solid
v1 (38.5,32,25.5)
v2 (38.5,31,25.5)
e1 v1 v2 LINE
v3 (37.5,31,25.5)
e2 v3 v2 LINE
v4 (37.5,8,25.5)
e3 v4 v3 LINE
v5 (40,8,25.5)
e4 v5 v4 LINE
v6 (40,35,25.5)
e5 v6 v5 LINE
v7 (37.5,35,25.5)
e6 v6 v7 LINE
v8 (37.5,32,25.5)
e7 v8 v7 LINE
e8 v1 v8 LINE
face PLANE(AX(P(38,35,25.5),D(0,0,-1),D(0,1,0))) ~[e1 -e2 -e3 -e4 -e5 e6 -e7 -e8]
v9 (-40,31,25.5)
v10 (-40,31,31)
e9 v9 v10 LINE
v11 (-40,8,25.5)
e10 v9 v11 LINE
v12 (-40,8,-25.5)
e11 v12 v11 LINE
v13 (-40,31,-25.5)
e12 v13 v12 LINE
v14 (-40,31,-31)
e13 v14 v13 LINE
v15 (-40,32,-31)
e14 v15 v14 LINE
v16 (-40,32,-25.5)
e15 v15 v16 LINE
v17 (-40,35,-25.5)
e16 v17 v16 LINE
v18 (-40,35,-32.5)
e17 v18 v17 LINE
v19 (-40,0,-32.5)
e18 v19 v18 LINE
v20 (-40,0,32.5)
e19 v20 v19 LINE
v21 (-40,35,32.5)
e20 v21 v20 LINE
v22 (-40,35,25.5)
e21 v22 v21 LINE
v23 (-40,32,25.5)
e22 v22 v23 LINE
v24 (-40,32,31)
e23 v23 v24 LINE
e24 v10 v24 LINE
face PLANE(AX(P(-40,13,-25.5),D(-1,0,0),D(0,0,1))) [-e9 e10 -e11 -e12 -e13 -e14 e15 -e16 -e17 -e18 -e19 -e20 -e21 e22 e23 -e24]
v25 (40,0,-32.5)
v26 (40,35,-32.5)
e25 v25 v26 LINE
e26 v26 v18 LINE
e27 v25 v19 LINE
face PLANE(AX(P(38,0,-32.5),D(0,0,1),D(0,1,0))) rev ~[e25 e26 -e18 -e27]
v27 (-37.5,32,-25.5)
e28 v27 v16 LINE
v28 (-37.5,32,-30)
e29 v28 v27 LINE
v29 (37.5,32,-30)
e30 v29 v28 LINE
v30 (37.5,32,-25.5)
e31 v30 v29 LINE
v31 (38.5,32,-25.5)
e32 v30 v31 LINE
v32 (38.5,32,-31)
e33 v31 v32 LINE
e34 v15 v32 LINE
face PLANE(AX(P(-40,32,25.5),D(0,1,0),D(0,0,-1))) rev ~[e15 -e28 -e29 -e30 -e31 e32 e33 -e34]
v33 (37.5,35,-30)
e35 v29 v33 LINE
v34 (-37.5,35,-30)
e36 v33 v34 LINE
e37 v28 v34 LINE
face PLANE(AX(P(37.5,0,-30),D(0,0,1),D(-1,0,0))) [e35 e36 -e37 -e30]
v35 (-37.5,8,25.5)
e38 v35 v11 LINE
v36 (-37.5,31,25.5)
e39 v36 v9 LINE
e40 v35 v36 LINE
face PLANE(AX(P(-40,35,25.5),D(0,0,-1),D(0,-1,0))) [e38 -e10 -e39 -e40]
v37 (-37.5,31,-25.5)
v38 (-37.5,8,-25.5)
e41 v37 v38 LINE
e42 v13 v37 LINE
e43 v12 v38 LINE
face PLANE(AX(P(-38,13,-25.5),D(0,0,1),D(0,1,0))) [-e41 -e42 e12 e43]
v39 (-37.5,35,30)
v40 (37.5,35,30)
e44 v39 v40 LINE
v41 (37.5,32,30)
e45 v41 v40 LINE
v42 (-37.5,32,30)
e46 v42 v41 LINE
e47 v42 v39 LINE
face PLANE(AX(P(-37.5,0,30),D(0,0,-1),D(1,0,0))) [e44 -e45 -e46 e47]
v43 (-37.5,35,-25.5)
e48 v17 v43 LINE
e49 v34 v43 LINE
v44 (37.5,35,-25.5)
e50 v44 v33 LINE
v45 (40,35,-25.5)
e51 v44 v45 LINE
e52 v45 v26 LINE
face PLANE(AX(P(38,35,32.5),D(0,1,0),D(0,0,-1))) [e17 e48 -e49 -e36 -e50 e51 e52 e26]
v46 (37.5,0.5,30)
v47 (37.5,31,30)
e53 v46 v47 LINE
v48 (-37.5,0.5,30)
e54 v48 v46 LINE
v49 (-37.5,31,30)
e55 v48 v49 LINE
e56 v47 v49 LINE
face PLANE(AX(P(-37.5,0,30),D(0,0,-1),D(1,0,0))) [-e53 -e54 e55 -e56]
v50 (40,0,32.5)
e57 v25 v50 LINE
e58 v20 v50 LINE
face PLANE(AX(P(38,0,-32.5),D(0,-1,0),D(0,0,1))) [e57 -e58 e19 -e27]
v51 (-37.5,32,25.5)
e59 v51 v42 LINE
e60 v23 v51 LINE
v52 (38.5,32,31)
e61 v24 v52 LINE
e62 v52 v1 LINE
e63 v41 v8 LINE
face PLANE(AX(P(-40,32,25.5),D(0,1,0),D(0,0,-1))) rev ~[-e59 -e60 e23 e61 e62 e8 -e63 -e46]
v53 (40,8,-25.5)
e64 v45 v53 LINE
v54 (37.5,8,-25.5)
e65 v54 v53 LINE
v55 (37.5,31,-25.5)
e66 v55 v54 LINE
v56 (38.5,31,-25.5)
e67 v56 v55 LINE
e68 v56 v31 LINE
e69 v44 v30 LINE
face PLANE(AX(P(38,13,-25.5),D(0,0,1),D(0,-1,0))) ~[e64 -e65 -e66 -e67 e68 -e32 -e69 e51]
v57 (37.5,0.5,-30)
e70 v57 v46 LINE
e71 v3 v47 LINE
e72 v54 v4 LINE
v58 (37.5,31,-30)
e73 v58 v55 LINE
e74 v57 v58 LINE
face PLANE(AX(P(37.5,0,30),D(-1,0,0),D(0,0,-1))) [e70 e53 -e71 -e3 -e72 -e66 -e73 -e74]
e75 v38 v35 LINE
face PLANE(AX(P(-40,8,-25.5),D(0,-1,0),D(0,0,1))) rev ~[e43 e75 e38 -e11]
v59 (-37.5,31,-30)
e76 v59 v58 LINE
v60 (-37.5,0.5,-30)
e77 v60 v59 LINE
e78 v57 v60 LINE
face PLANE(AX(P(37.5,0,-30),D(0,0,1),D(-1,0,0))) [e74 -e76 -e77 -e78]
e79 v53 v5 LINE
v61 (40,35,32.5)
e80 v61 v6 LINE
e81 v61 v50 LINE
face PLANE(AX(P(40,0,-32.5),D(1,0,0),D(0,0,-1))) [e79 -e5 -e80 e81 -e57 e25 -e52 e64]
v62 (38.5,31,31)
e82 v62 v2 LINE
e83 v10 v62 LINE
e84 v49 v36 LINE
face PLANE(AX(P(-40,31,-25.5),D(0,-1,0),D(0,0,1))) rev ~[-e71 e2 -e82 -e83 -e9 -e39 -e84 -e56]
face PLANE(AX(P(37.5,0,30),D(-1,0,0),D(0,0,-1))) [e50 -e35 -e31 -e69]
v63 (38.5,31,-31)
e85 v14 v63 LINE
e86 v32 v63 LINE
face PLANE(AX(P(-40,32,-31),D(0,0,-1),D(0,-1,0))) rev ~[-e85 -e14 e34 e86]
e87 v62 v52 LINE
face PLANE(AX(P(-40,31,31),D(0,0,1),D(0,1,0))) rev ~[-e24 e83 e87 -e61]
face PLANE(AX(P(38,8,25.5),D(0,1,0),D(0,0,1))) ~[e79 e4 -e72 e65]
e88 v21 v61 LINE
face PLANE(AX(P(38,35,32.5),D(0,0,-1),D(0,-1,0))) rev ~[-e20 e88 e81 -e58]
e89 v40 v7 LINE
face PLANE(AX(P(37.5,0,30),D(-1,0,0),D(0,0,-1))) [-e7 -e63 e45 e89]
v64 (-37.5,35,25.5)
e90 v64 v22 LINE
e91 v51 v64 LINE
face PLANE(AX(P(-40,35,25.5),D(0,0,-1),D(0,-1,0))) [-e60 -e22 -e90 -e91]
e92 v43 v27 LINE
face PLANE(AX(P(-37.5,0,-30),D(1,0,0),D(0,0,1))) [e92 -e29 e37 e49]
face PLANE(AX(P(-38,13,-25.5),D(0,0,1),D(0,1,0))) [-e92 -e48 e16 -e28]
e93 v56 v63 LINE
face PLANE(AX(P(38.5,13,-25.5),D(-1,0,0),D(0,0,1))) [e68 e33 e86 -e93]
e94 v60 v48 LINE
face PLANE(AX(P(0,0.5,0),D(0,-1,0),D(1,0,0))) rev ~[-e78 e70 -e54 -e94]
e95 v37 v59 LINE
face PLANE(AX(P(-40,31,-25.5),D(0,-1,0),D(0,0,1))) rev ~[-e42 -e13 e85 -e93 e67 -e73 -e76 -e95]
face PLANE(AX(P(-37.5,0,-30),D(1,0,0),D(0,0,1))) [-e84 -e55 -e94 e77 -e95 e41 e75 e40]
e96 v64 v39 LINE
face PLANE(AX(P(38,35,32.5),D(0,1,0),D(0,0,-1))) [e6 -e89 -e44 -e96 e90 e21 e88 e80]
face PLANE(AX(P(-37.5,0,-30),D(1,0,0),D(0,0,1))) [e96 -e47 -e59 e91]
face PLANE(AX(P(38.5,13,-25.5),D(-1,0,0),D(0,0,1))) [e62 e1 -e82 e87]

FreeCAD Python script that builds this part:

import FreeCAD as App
import Part
import Sketcher
from FreeCAD import Vector


def add_polygon(sketch, points):
    """Adds a closed chain of lines whose ends are joined by coincident constraints."""
    first, n = sketch.GeometryCount, len(points)
    for a, b in zip(points, points[1:] + points[:1]):
        sketch.addGeometry(Part.LineSegment(App.Vector(*a, 0), App.Vector(*b, 0)), False)
    for i in range(n):
        sketch.addConstraint(Sketcher.Constraint("Coincident", first + i, 2, first + (i + 1) % n, 1))

doc = App.newDocument("Part")
body = doc.addObject("PartDesign::Body", "Body")

# Sketch on XZ plane
sketch1 = doc.addObject("Sketcher::SketchObject", "Sketch")
body.addObject(sketch1)
sketch1.AttachmentSupport = (doc.XZ_Plane, [""])
sketch1.MapMode = "FlatFace"
add_polygon(sketch1, [(-38, -30), (-38, 30), (38, 30), (38, -30)])  # lines 0-3
add_polygon(sketch1, [(38, 30), (-38, 30), (-38, -30), (38, -30)])  # lines 4-7
sketch1.addConstraint([
    Sketcher.Constraint("Vertical", 0),
    Sketcher.Constraint("Horizontal", 1),
    Sketcher.Constraint("Vertical", 2),
    Sketcher.Constraint("Horizontal", 3),
    Sketcher.Constraint("Horizontal", 4),
    Sketcher.Constraint("Vertical", 5),
    Sketcher.Constraint("Horizontal", 6),
    Sketcher.Constraint("Vertical", 7),
    Sketcher.Constraint("Symmetric", 0, 2, 2, 2, -1, 1),
    Sketcher.Constraint("Symmetric", 4, 2, 6, 2, -1, 1),
    Sketcher.Constraint("DistanceX", 1, 1, 1, 2, 76.0),
    Sketcher.Constraint("DistanceX", 4, 2, 4, 1, 75.0),
    Sketcher.Constraint("DistanceY", 0, 1, 0, 2, 61.0),
    Sketcher.Constraint("DistanceY", 5, 2, 5, 1, 60.0),
])
pad1 = doc.addObject("PartDesign::Pad", "Pad")
body.addObject(pad1)
pad1.Profile = sketch1
pad1.Length = 35
pad1.Reversed = True

# Sketch on XZ plane
sketch2 = doc.addObject("Sketcher::SketchObject", "Sketch001")
body.addObject(sketch2)
sketch2.AttachmentSupport = (doc.XZ_Plane, [""])
sketch2.MapMode = "FlatFace"
add_polygon(sketch2, [(-38, -30), (38, -30), (38, 30), (-38, 30)])  # lines 0-3
sketch2.addConstraint([
    Sketcher.Constraint("Horizontal", 0),
    Sketcher.Constraint("Vertical", 1),
    Sketcher.Constraint("Horizontal", 2),
    Sketcher.Constraint("Vertical", 3),
    Sketcher.Constraint("Symmetric", 0, 2, 2, 2, -1, 1),
    Sketcher.Constraint("DistanceX", 0, 1, 0, 2, 75.0),
    Sketcher.Constraint("DistanceY", 1, 1, 1, 2, 60.0),
])
pad2 = doc.addObject("PartDesign::Pad", "Pad001")
body.addObject(pad2)
pad2.Profile = sketch2
pad2.Length = 0.5
pad2.Reversed = True

# Sketch on YZ plane
sketch3 = doc.addObject("Sketcher::SketchObject", "Sketch002")
body.addObject(sketch3)
sketch3.AttachmentSupport = (doc.YZ_Plane, [""])
sketch3.MapMode = "FlatFace"
sketch3.AttachmentOffset = App.Placement(Vector(0, 0, -38), App.Rotation())
add_polygon(sketch3, [(35, 26), (35, -26), (8, -26), (8, 26)])  # lines 0-3
sketch3.addConstraint([
    Sketcher.Constraint("Vertical", 0),
    Sketcher.Constraint("Horizontal", 1),
    Sketcher.Constraint("Vertical", 2),
    Sketcher.Constraint("Horizontal", 3),
    Sketcher.Constraint("DistanceX", -1, 1, 1, 2, 8.0),
    Sketcher.Constraint("DistanceX", 1, 2, 1, 1, 27.0),
    Sketcher.Constraint("DistanceY", 0, 2, 0, 1, 51.0),
    Sketcher.Constraint("DistanceY", 0, 2, -1, 1, 25.5),
])
pocket1 = doc.addObject("PartDesign::Pocket", "Pocket")
body.addObject(pocket1)
pocket1.Profile = sketch3
pocket1.Length = 30
pocket1.Reversed = True

# Sketch on XY plane
sketch4 = doc.addObject("Sketcher::SketchObject", "Sketch003")
body.addObject(sketch4)
sketch4.AttachmentSupport = (doc.XY_Plane, [""])
sketch4.MapMode = "FlatFace"
sketch4.AttachmentOffset = App.Placement(Vector(0, 0, -30.5), App.Rotation())
add_polygon(sketch4, [(38, 35), (38, 0), (-38, 0), (-38, 35)])  # lines 0-3
sketch4.addConstraint([
    Sketcher.Constraint("Vertical", 0),
    Sketcher.Constraint("Horizontal", 1),
    Sketcher.Constraint("Vertical", 2),
    Sketcher.Constraint("Horizontal", 3),
    Sketcher.Constraint("Symmetric", 0, 2, 1, 2, -1, 1),
    Sketcher.Constraint("DistanceX", 1, 2, 1, 1, 76.0),
    Sketcher.Constraint("DistanceY", 0, 2, 0, 1, 35.0),
])
pad3 = doc.addObject("PartDesign::Pad", "Pad002")
body.addObject(pad3)
pad3.Profile = sketch4
pad3.Length = 2
pad3.Reversed = True

# Sketch on XY plane
sketch5 = doc.addObject("Sketcher::SketchObject", "Sketch004")
body.addObject(sketch5)
sketch5.AttachmentSupport = (doc.XY_Plane, [""])
sketch5.MapMode = "FlatFace"
sketch5.AttachmentOffset = App.Placement(Vector(0, 0, 30.5), App.Rotation())
add_polygon(sketch5, [(-38, 0), (38, 0), (38, 35), (-38, 35)])  # lines 0-3
sketch5.addConstraint([
    Sketcher.Constraint("Horizontal", 0),
    Sketcher.Constraint("Vertical", 1),
    Sketcher.Constraint("Horizontal", 2),
    Sketcher.Constraint("Vertical", 3),
    Sketcher.Constraint("Symmetric", 0, 2, 3, 2, -1, 1),
    Sketcher.Constraint("DistanceX", 0, 1, 0, 2, 76.0),
    Sketcher.Constraint("DistanceY", 1, 1, 1, 2, 35.0),
])
pad4 = doc.addObject("PartDesign::Pad", "Pad003")
body.addObject(pad4)
pad4.Profile = sketch5
pad4.Length = 2

# Sketch on YZ plane
sketch6 = doc.addObject("Sketcher::SketchObject", "Sketch005")
body.addObject(sketch6)
sketch6.AttachmentSupport = (doc.YZ_Plane, [""])
sketch6.MapMode = "FlatFace"
sketch6.AttachmentOffset = App.Placement(Vector(0, 0, -38), App.Rotation())
add_polygon(sketch6, [(35, 32), (35, -32), (0, -32), (0, 32)])  # lines 0-3
sketch6.addConstraint([
    Sketcher.Constraint("Vertical", 0),
    Sketcher.Constraint("Horizontal", 1),
    Sketcher.Constraint("Vertical", 2),
    Sketcher.Constraint("Horizontal", 3),
    Sketcher.Constraint("Symmetric", 1, 2, 2, 2, -1, 1),
    Sketcher.Constraint("DistanceX", 1, 2, 1, 1, 35.0),
    Sketcher.Constraint("DistanceY", 0, 2, 0, 1, 65.0),
])
pad5 = doc.addObject("PartDesign::Pad", "Pad004")
body.addObject(pad5)
pad5.Profile = sketch6
pad5.Length = 2
pad5.Reversed = True

# Sketch on YZ plane
sketch7 = doc.addObject("Sketcher::SketchObject", "Sketch006")
body.addObject(sketch7)
sketch7.AttachmentSupport = (doc.YZ_Plane, [""])
sketch7.MapMode = "FlatFace"
sketch7.AttachmentOffset = App.Placement(Vector(0, 0, 38), App.Rotation())
add_polygon(sketch7, [(35, -32), (35, 32), (0, 32), (0, -32)])  # lines 0-3
sketch7.addConstraint([
    Sketcher.Constraint("Vertical", 0),
    Sketcher.Constraint("Horizontal", 1),
    Sketcher.Constraint("Vertical", 2),
    Sketcher.Constraint("Horizontal", 3),
    Sketcher.Constraint("Symmetric", 1, 2, 2, 2, -1, 1),
    Sketcher.Constraint("DistanceX", 1, 2, 1, 1, 35.0),
    Sketcher.Constraint("DistanceY", 0, 1, 0, 2, 65.0),
])
pad6 = doc.addObject("PartDesign::Pad", "Pad005")
body.addObject(pad6)
pad6.Profile = sketch7
pad6.Length = 2

# Sketch on YZ plane
sketch8 = doc.addObject("Sketcher::SketchObject", "Sketch007")
body.addObject(sketch8)
sketch8.AttachmentSupport = (doc.YZ_Plane, [""])
sketch8.MapMode = "FlatFace"
sketch8.AttachmentOffset = App.Placement(Vector(0, 0, -40), App.Rotation())
add_polygon(sketch8, [(35, 26), (35, -26), (8, -26), (8, 26)])  # lines 0-3
sketch8.addConstraint([
    Sketcher.Constraint("Vertical", 0),
    Sketcher.Constraint("Horizontal", 1),
    Sketcher.Constraint("Vertical", 2),
    Sketcher.Constraint("Horizontal", 3),
    Sketcher.Constraint("DistanceX", 1, 2, 1, 1, 27.0),
    Sketcher.Constraint("DistanceY", 0, 2, 0, 1, 51.0),
    Sketcher.Constraint("DistanceX", -1, 1, 0, 2, 35.0),
    Sketcher.Constraint("DistanceY", 0, 2, -1, 1, 25.5),
])
pocket2 = doc.addObject("PartDesign::Pocket", "Pocket001")
body.addObject(pocket2)
pocket2.Profile = sketch8
pocket2.Length = 30
pocket2.Reversed = True
doc.recompute()

mirrored = doc.addObject("PartDesign::Mirrored", "Mirrored")
body.addObject(mirrored)
mirrored.Originals = [pocket1, pocket2]
mirrored.MirrorPlane = (doc.YZ_Plane, [""])
body.Tip = mirrored

# Sketch on YZ plane
sketch9 = doc.addObject("Sketcher::SketchObject", "Sketch008")
body.addObject(sketch9)
sketch9.AttachmentSupport = (doc.YZ_Plane, [""])
sketch9.MapMode = "FlatFace"
sketch9.AttachmentOffset = App.Placement(Vector(0, 0, -40), App.Rotation())
add_polygon(sketch9, [(32, -31), (31, -31), (31, 31), (32, 31)])  # lines 0-3
sketch9.addConstraint([
    Sketcher.Constraint("Horizontal", 0),
    Sketcher.Constraint("Vertical", 1),
    Sketcher.Constraint("Horizontal", 2),
    Sketcher.Constraint("Vertical", 3),
    Sketcher.Constraint("DistanceX", 0, 2, 0, 1, 1.0),
    Sketcher.Constraint("DistanceY", 1, 1, 1, 2, 62.0),
    Sketcher.Constraint("DistanceX", -1, 1, 0, 2, 31.0),
    Sketcher.Constraint("DistanceY", 0, 2, -1, 1, 31.0),
])
pocket3 = doc.addObject("PartDesign::Pocket", "Pocket002")
body.addObject(pocket3)
pocket3.Profile = sketch9
pocket3.Length = 78.5
pocket3.Reversed = True

doc.recompute()
